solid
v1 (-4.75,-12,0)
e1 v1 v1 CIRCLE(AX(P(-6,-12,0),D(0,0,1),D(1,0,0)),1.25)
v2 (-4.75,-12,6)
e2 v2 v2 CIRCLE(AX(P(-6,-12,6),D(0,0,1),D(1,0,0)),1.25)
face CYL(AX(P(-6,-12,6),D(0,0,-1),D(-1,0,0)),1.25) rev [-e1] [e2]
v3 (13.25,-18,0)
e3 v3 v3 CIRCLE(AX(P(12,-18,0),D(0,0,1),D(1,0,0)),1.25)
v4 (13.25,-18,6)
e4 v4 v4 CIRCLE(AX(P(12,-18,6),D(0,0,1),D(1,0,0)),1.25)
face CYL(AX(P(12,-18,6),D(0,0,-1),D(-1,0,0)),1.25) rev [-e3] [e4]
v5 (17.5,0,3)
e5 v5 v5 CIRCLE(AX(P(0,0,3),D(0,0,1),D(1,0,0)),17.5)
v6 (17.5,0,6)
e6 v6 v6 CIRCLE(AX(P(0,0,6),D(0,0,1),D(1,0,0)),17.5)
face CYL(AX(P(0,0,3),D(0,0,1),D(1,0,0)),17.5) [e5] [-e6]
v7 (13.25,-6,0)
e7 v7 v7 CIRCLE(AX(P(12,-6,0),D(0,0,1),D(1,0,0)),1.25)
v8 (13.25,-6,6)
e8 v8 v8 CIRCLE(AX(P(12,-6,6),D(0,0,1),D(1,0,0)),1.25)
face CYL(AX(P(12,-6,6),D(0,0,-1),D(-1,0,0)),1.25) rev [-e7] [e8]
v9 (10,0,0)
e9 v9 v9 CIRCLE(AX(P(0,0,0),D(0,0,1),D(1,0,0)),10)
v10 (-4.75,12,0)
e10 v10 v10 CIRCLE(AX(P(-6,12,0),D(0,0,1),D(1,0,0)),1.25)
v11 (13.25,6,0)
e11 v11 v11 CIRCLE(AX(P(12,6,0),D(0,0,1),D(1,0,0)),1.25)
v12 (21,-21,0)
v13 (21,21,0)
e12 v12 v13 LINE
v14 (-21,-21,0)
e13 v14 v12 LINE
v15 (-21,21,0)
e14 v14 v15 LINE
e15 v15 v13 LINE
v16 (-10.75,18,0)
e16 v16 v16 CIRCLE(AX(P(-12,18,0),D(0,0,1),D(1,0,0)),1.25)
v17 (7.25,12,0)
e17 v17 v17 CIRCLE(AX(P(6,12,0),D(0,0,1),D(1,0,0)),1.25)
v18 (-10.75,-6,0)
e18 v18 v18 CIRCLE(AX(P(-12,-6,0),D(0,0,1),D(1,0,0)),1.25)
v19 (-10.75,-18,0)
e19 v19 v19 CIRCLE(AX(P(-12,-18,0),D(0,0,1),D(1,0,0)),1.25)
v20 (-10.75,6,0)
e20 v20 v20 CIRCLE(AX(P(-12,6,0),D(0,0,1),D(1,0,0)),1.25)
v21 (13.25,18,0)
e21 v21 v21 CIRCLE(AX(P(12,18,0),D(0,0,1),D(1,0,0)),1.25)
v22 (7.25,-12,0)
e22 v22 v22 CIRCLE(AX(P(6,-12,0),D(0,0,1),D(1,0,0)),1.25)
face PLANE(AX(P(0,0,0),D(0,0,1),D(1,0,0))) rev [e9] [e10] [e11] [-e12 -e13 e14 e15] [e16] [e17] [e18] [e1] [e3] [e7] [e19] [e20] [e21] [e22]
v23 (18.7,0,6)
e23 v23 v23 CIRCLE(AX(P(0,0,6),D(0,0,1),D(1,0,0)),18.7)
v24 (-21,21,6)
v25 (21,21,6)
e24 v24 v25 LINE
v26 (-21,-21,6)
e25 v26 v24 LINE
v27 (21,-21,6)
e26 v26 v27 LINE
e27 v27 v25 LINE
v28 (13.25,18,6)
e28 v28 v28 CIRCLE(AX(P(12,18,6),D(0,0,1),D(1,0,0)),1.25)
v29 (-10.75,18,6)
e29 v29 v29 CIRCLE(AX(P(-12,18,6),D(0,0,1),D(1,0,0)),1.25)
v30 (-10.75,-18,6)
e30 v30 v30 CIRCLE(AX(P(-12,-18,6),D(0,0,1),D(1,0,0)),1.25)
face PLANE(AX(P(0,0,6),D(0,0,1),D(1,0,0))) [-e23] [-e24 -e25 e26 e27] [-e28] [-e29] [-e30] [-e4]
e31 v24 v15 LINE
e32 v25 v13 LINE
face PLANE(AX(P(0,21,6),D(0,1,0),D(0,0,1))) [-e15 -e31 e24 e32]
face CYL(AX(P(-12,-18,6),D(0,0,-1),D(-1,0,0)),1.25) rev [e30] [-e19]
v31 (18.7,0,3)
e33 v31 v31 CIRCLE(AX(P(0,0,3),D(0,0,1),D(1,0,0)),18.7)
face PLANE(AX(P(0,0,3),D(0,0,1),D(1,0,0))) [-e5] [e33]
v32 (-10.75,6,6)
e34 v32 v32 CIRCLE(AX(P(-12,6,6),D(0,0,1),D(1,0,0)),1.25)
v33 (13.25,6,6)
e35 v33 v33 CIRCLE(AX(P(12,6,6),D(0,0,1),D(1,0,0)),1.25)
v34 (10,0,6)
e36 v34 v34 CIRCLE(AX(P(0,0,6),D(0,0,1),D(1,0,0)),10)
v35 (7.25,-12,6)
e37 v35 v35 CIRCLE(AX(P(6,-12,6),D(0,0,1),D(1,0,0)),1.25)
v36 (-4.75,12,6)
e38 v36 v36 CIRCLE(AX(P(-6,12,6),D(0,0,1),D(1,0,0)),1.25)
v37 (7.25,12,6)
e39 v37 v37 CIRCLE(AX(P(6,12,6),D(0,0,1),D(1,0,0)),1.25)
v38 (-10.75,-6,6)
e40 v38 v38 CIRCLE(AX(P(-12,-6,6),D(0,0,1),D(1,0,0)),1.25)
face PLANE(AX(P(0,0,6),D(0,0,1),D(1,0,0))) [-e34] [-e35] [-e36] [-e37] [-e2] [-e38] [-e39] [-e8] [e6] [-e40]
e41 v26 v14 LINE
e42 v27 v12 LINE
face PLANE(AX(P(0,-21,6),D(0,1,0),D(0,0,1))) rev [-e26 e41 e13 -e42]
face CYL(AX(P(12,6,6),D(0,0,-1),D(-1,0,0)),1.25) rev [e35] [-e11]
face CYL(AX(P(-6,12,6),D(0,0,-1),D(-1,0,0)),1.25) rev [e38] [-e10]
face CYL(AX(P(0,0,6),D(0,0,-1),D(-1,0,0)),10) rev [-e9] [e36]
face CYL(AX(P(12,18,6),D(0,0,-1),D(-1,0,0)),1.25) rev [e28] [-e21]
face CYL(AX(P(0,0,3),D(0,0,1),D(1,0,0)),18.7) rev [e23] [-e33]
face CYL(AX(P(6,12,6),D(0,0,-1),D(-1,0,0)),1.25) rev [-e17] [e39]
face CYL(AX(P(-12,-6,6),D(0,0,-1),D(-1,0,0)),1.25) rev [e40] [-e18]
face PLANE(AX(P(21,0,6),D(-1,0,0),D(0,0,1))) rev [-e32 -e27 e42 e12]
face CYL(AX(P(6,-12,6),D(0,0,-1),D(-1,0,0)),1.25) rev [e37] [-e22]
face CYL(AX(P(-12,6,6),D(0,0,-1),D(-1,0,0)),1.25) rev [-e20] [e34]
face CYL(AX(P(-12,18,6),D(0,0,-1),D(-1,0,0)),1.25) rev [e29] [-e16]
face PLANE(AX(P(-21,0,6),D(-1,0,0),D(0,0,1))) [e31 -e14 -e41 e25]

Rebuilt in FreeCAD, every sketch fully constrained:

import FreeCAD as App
import Part
import Sketcher

V = App.Vector

doc = App.newDocument("Part")
params = doc.addObject("Spreadsheet::Sheet", "Params")
for row, (alias, value) in enumerate([
    ("sketch1_diameter", "20 mm"),
    ("sketch1_diameter2", "2.5 mm"),
    ("sketch1_width", "42 mm"),
    ("pad1_length", "6 mm"),
    ("sketch2_diameter", "35 mm"),
    ("sketch2_diameter2", "37.4 mm"),
    ("pocket1_length", "3 mm"),
], start=1):
    params.set(f"A{row}", alias)
    params.set(f"B{row}", "=" + value)
    params.setAlias(f"B{row}", alias)

body = doc.addObject("PartDesign::Body", "Body")

sketch1 = body.newObject("Sketcher::SketchObject", "Sketch")
sketch1.AttachmentSupport = (doc.getObject("XY_Plane"), [""])
sketch1.MapMode = "FlatFace"
sketch1.addGeometry(Part.LineSegment(V(-21, 21, 0), V(-21, -21, 0)), False)
sketch1.addGeometry(Part.LineSegment(V(-21, -21, 0), V(21, -21, 0)), False)
sketch1.addGeometry(Part.LineSegment(V(21, -21, 0), V(21, 21, 0)), False)
sketch1.addGeometry(Part.LineSegment(V(21, 21, 0), V(-21, 21, 0)), False)
sketch1.addGeometry(Part.Circle(V(-12, -18, 0), V(0, 0, 1), 1.2), False)
sketch1.addGeometry(Part.Circle(V(-6, -12, 0), V(0, 0, 1), 1.2), False)
sketch1.addGeometry(Part.Circle(V(-12, -6, 0), V(0, 0, 1), 1.2), False)
sketch1.addGeometry(Part.Circle(V(6, -12, 0), V(0, 0, 1), 1.2), False)
sketch1.addGeometry(Part.Circle(V(12, -18, 0), V(0, 0, 1), 1.2), False)
sketch1.addGeometry(Part.Circle(V(12, -6, 0), V(0, 0, 1), 1.2), False)
sketch1.addGeometry(Part.Circle(V(-12, 6, 0), V(0, 0, 1), 1.2), False)
sketch1.addGeometry(Part.Circle(V(-12, 18, 0), V(0, 0, 1), 1.2), False)
sketch1.addGeometry(Part.Circle(V(-6, 12, 0), V(0, 0, 1), 1.2), False)
sketch1.addGeometry(Part.Circle(V(0, 0, 0), V(0, 0, 1), 10), False)
sketch1.addGeometry(Part.Circle(V(12, 6, 0), V(0, 0, 1), 1.2), False)
sketch1.addGeometry(Part.Circle(V(6, 12, 0), V(0, 0, 1), 1.2), False)
sketch1.addGeometry(Part.Circle(V(12, 18, 0), V(0, 0, 1), 1.2), False)
sketch1.addConstraint(Sketcher.Constraint("Coincident", 0, 2, 1, 1))
sketch1.addConstraint(Sketcher.Constraint("Coincident", 1, 2, 2, 1))
sketch1.addConstraint(Sketcher.Constraint("Coincident", 2, 2, 3, 1))
sketch1.addConstraint(Sketcher.Constraint("Coincident", 3, 2, 0, 1))
sketch1.addConstraint(Sketcher.Constraint("Vertical", 0))
sketch1.addConstraint(Sketcher.Constraint("Horizontal", 1))
sketch1.addConstraint(Sketcher.Constraint("Vertical", 2))
sketch1.addConstraint(Sketcher.Constraint("Horizontal", 3))
sketch1.addConstraint(Sketcher.Constraint("Coincident", 13, 3, -1, 1))
sketch1.addConstraint(Sketcher.Constraint("Equal", 4, 5))
sketch1.addConstraint(Sketcher.Constraint("Equal", 5, 6))
sketch1.addConstraint(Sketcher.Constraint("Equal", 6, 7))
sketch1.addConstraint(Sketcher.Constraint("Equal", 7, 8))
sketch1.addConstraint(Sketcher.Constraint("Equal", 8, 9))
sketch1.addConstraint(Sketcher.Constraint("Equal", 9, 10))
sketch1.addConstraint(Sketcher.Constraint("Equal", 10, 11))
sketch1.addConstraint(Sketcher.Constraint("Equal", 11, 12))
sketch1.addConstraint(Sketcher.Constraint("Equal", 12, 14))
sketch1.addConstraint(Sketcher.Constraint("Equal", 14, 15))
sketch1.addConstraint(Sketcher.Constraint("Equal", 15, 16))
sketch1.addConstraint(Sketcher.Constraint("Symmetric", 9, 3, 10, 3, -1, 1))
sketch1.addConstraint(Sketcher.Constraint("Symmetric", 8, 3, 11, 3, -1, 1))
sketch1.addConstraint(Sketcher.Constraint("Symmetric", 7, 3, 12, 3, -1, 1))
sketch1.addConstraint(Sketcher.Constraint("Symmetric", 6, 3, 14, 3, -1, 1))
sketch1.addConstraint(Sketcher.Constraint("Symmetric", 5, 3, 15, 3, -1, 1))
sketch1.addConstraint(Sketcher.Constraint("Symmetric", 4, 3, 16, 3, -1, 1))
sketch1.addConstraint(Sketcher.Constraint("Symmetric", 0, 2, 2, 2, -1, 1))
sketch1.addConstraint(Sketcher.Constraint("Symmetric", 5, 3, 7, 3, -2))
sketch1.addConstraint(Sketcher.Constraint("Symmetric", 4, 3, 8, 3, -2))
sketch1.addConstraint(Sketcher.Constraint("Symmetric", 6, 3, 9, 3, -2))
sketch1.addConstraint(Sketcher.Constraint("Vertical", 4, 3, 6, 3))
sketch1.addConstraint(Sketcher.Constraint("Equal", 3, 0))
sketch1.addConstraint(Sketcher.Constraint("Diameter", 13, 20.0))
sketch1.addConstraint(Sketcher.Constraint("Diameter", 4, 2.5))
sketch1.addConstraint(Sketcher.Constraint("DistanceX", 1, 1, 1, 2, 42.0))
sketch1.addConstraint(Sketcher.Constraint("DistanceX", 4, 3, -1, 1, 12.0))
sketch1.addConstraint(Sketcher.Constraint("DistanceY", 4, 3, -1, 1, 18.0))
sketch1.addConstraint(Sketcher.Constraint("DistanceX", 5, 3, -1, 1, 6.0))
sketch1.addConstraint(Sketcher.Constraint("DistanceY", 5, 3, -1, 1, 12.0))
sketch1.addConstraint(Sketcher.Constraint("DistanceY", 6, 3, -1, 1, 6.0))
sketch1.setExpression("Constraints[32]", "Params.sketch1_diameter")
sketch1.setExpression("Constraints[33]", "Params.sketch1_diameter2")
sketch1.setExpression("Constraints[34]", "Params.sketch1_width")
pad1 = body.newObject("PartDesign::Pad", "Pad")
pad1.Profile = sketch1
pad1.setExpression("Length", "Params.pad1_length")

sketch2 = body.newObject("Sketcher::SketchObject", "Sketch001")
sketch2.AttachmentSupport = (doc.getObject("XY_Plane"), [""])
sketch2.MapMode = "FlatFace"
sketch2.AttachmentOffset = App.Placement(V(0, 0, 6), App.Rotation())
sketch2.addGeometry(Part.Circle(V(0, 0, 0), V(0, 0, 1), 19), False)
sketch2.addGeometry(Part.Circle(V(0, 0, 0), V(0, 0, 1), 18), False)
sketch2.addConstraint(Sketcher.Constraint("Coincident", 0, 3, -1, 1))
sketch2.addConstraint(Sketcher.Constraint("Coincident", 1, 3, -1, 1))
sketch2.addConstraint(Sketcher.Constraint("Diameter", 1, 35.0))
sketch2.addConstraint(Sketcher.Constraint("Diameter", 0, 37.4))
sketch2.setExpression("Constraints[2]", "Params.sketch2_diameter")
sketch2.setExpression("Constraints[3]", "Params.sketch2_diameter2")
pocket1 = body.newObject("PartDesign::Pocket", "Pocket")
pocket1.Profile = sketch2
pocket1.setExpression("Length", "Params.pocket1_length")

doc.recompute()
